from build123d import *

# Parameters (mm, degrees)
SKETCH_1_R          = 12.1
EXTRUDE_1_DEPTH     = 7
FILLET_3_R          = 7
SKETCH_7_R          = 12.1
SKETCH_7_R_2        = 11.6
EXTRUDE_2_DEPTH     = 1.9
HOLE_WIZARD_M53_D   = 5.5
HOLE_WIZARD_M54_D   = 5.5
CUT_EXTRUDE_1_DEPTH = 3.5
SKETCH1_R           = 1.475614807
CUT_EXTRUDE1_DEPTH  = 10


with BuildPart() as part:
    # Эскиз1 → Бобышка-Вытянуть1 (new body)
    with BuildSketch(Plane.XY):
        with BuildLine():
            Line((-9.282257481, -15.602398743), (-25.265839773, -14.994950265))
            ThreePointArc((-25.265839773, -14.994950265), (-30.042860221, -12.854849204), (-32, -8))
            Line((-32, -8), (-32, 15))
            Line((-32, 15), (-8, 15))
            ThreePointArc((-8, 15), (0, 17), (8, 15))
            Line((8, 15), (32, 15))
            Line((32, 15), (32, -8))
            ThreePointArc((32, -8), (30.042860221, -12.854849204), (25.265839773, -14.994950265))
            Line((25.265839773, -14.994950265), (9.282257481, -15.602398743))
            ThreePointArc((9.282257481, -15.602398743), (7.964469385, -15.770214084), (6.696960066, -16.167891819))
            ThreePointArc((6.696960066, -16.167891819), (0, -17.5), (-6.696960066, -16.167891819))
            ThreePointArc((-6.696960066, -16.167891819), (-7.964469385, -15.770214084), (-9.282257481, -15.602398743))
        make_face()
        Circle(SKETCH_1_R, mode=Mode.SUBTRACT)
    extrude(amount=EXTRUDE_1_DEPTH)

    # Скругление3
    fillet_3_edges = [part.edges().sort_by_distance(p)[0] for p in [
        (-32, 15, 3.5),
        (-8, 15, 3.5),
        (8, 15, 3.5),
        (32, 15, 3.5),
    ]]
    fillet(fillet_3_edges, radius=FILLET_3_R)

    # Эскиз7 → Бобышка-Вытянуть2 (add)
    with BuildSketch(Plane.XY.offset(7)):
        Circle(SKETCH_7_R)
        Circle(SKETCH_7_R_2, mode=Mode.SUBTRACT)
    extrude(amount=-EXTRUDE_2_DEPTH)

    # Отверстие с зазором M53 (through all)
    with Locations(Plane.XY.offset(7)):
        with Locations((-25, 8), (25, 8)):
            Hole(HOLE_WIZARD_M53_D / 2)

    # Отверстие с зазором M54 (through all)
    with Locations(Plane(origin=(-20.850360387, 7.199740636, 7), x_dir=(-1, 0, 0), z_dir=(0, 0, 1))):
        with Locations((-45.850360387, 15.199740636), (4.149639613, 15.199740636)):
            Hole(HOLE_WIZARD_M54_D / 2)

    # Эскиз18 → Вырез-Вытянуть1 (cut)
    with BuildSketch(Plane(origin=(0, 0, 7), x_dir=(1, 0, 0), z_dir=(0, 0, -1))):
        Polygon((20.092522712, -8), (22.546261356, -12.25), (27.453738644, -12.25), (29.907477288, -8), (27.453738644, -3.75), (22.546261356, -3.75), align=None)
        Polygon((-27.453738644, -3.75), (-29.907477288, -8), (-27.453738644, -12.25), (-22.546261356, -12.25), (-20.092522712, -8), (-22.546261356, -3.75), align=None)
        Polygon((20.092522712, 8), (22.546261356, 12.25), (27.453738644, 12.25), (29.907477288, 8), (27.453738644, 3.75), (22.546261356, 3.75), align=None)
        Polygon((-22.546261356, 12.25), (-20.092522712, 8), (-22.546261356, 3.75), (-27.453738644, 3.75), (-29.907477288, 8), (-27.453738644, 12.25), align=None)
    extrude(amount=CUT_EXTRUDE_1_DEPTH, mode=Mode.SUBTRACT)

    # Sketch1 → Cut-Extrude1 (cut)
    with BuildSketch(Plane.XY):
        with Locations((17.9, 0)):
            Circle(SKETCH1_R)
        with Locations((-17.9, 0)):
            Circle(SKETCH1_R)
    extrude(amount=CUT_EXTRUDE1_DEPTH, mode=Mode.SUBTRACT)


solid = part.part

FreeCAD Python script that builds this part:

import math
import FreeCAD as App
import Part
import Sketcher
from FreeCAD import Vector
Q = App.Units.Quantity


def edges_at(feature, points):
    """Names of the edges that pass closest to the given points."""
    edges = feature.Shape.Edges
    near = lambda p: min(range(len(edges)), key=lambda i: edges[i].distToShape(Part.Vertex(*p))[0])
    return sorted({f"Edge{near(p) + 1}" for p in points})

doc = App.newDocument("Part")
body = doc.addObject("PartDesign::Body", "Body")

sketch1 = doc.addObject("Sketcher::SketchObject", "Sketch")
body.addObject(sketch1)
sketch1.AttachmentSupport = (doc.XY_Plane, [""])
sketch1.MapMode = "FlatFace"
sketch1.addGeometry([
    Part.LineSegment(Vector(-25.26584, -14.99495, 0), Vector(-9.282257, -15.602399, 0)),
    Part.ArcOfCircle(Part.Circle(Vector(-9.567086, -23.096988, 0), Vector(0, 0, 1), 7.5), math.radians(67.5), math.radians(87.823548)),
    Part.ArcOfCircle(Part.Circle(Vector(0, 0, 0), Vector(0, 0, 1), 17.5), math.radians(-112.5), math.radians(-67.5)),
    Part.ArcOfCircle(Part.Circle(Vector(9.567086, -23.096988, 0), Vector(0, 0, 1), 7.5), math.radians(92.176452), math.radians(112.5)),
    Part.LineSegment(Vector(9.282257, -15.602399, 0), Vector(25.26584, -14.99495, 0)),
    Part.ArcOfCircle(Part.Circle(Vector(25, -8, 0), Vector(0, 0, 1), 7), math.radians(-87.823548), math.radians(0)),
    Part.LineSegment(Vector(32, -8, 0), Vector(32, 15, 0)),
    Part.LineSegment(Vector(32, 15, 0), Vector(8, 15, 0)),
    Part.ArcOfCircle(Part.Circle(Vector(0, 0, 0), Vector(0, 0, 1), 17), math.radians(61.927513), math.radians(118.072487)),
    Part.LineSegment(Vector(-8, 15, 0), Vector(-32, 15, 0)),
    Part.LineSegment(Vector(-32, 15, 0), Vector(-32, -8, 0)),
    Part.ArcOfCircle(Part.Circle(Vector(-25, -8, 0), Vector(0, 0, 1), 7), math.radians(180), math.radians(267.823548)),
    Part.Circle(Vector(0, 0, 0), Vector(0, 0, 1), 12.1),
], False)
sketch1.addConstraint([
    Sketcher.Constraint("Tangent", 0, 2, 1, 2),
    Sketcher.Constraint("Tangent", 1, 1, 2, 1),
    Sketcher.Constraint("Tangent", 2, 2, 3, 2),
    Sketcher.Constraint("Tangent", 3, 1, 4, 1),
    Sketcher.Constraint("Tangent", 4, 2, 5, 1),
    Sketcher.Constraint("Tangent", 5, 2, 6, 1),
    Sketcher.Constraint("Coincident", 6, 2, 7, 1),
    Sketcher.Constraint("Coincident", 7, 2, 8, 1),
    Sketcher.Constraint("Coincident", 8, 2, 9, 1),
    Sketcher.Constraint("Coincident", 9, 2, 10, 1),
    Sketcher.Constraint("Tangent", 10, 2, 11, 1),
    Sketcher.Constraint("Tangent", 11, 2, 0, 1),
    Sketcher.Constraint("Vertical", 6),
    Sketcher.Constraint("Horizontal", 7),
    Sketcher.Constraint("Horizontal", 9),
    Sketcher.Constraint("Vertical", 10),
    Sketcher.Constraint("Coincident", 2, 3, -1, 1),
    Sketcher.Constraint("Coincident", 8, 3, -1, 1),
    Sketcher.Constraint("Coincident", 12, 3, -1, 1),
    Sketcher.Constraint("Equal", 1, 3),
    Sketcher.Constraint("Equal", 5, 11),
    Sketcher.Constraint("Symmetric", 5, 3, 11, 3, -2),
    Sketcher.Constraint("Horizontal", 1, 3, 3, 3),
    Sketcher.Constraint("Horizontal", 7, 2, 8, 2),
    Sketcher.Constraint("Radius", 5, Q("7 mm")),
    Sketcher.Constraint("Radius", 8, Q("17 mm")),
    Sketcher.Constraint("Diameter", 12, Q("24.2 mm")),
    Sketcher.Constraint("Radius", 1, Q("7.5 mm")),
    Sketcher.Constraint("Radius", 2, Q("17.5 mm")),
    Sketcher.Constraint("DistanceX", 7, 2, 7, 1, Q("24 mm")),
    Sketcher.Constraint("DistanceY", 6, 1, 6, 2, Q("23 mm")),
    Sketcher.Constraint("DistanceX", -1, 1, 5, 3, Q("25 mm")),
    Sketcher.Constraint("DistanceY", 0, 2, -1, 1, Q("15.602399 mm")),
])
pad1 = doc.addObject("PartDesign::Pad", "Pad")
body.addObject(pad1)
pad1.Profile = sketch1
pad1.Length = 7
doc.recompute()

fillet = doc.addObject("PartDesign::Fillet", "Fillet")
body.addObject(fillet)
fillet.Base = (pad1, edges_at(pad1, [
    (-32, 15, 3.5),
    (-8, 15, 3.5),
    (8, 15, 3.5),
    (32, 15, 3.5),
]))
fillet.Radius = 7

sketch2 = doc.addObject("Sketcher::SketchObject", "Sketch001")
body.addObject(sketch2)
sketch2.AttachmentSupport = (doc.XY_Plane, [""])
sketch2.MapMode = "FlatFace"
sketch2.AttachmentOffset = App.Placement(Vector(0, 0, 7), App.Rotation())
sketch2.addGeometry([
    Part.Circle(Vector(0, 0, 0), Vector(0, 0, 1), 12.1),
    Part.Circle(Vector(0, 0, 0), Vector(0, 0, 1), 11.6),
], False)
sketch2.addConstraint([
    Sketcher.Constraint("Coincident", 0, 3, -1, 1),
    Sketcher.Constraint("Coincident", 1, 3, -1, 1),
    Sketcher.Constraint("Diameter", 0, Q("24.2 mm")),
    Sketcher.Constraint("Diameter", 1, Q("23.2 mm")),
])
pad2 = doc.addObject("PartDesign::Pad", "Pad001")
body.addObject(pad2)
pad2.Profile = sketch2
pad2.Length = 1.9
pad2.Reversed = True

sketch3 = doc.addObject("Sketcher::SketchObject", "Sketch002")
body.addObject(sketch3)
sketch3.AttachmentSupport = (doc.XY_Plane, [""])
sketch3.MapMode = "FlatFace"
sketch3.AttachmentOffset = App.Placement(Vector(0, 0, 7), App.Rotation())
sketch3.addGeometry([
    Part.Circle(Vector(-25, 8, 0), Vector(0, 0, 1), 2.75),
    Part.Circle(Vector(25, 8, 0), Vector(0, 0, 1), 2.75),
], False)
sketch3.addConstraint([
    Sketcher.Constraint("Equal", 0, 1),
    Sketcher.Constraint("Symmetric", 0, 3, 1, 3, -2),
    Sketcher.Constraint("Diameter", 0, Q("5.5 mm")),
    Sketcher.Constraint("DistanceX", 0, 3, -1, 1, Q("25 mm")),
    Sketcher.Constraint("DistanceY", -1, 1, 0, 3, Q("8 mm")),
])
doc.recompute()
hole = doc.addObject("PartDesign::Hole", "Hole")
body.addObject(hole)
hole.Profile = sketch3
hole.ThreadType = "None"
hole.Diameter = 5.5
hole.DepthType = "ThroughAll"

sketch4 = doc.addObject("Sketcher::SketchObject", "Sketch003")
body.addObject(sketch4)
sketch4.AttachmentSupport = (doc.XY_Plane, [""])
sketch4.MapMode = "FlatFace"
sketch4.AttachmentOffset = App.Placement(Vector(0, 0, 7), App.Rotation())
sketch4.addGeometry([
    Part.Circle(Vector(25, -8, 0), Vector(0, 0, 1), 2.75),
    Part.Circle(Vector(-25, -8, 0), Vector(0, 0, 1), 2.75),
], False)
sketch4.addConstraint([
    Sketcher.Constraint("Equal", 0, 1),
    Sketcher.Constraint("Symmetric", 0, 3, 1, 3, -2),
    Sketcher.Constraint("Diameter", 0, Q("5.5 mm")),
    Sketcher.Constraint("DistanceX", -1, 1, 0, 3, Q("25 mm")),
    Sketcher.Constraint("DistanceY", 0, 3, -1, 1, Q("8 mm")),
])
doc.recompute()
hole2 = doc.addObject("PartDesign::Hole", "Hole001")
body.addObject(hole2)
hole2.Profile = sketch4
hole2.ThreadType = "None"
hole2.Diameter = 5.5
hole2.DepthType = "ThroughAll"

sketch5 = doc.addObject("Sketcher::SketchObject", "Sketch004")
body.addObject(sketch5)
sketch5.AttachmentSupport = (doc.XY_Plane, [""])
sketch5.MapMode = "FlatFace"
sketch5.AttachmentOffset = App.Placement(Vector(0, 0, 7), App.Rotation())
sketch5.addGeometry([
    Part.LineSegment(Vector(20.092523, 8, 0), Vector(22.546261, 12.25, 0)),
    Part.LineSegment(Vector(22.546261, 12.25, 0), Vector(27.453739, 12.25, 0)),
    Part.LineSegment(Vector(27.453739, 12.25, 0), Vector(29.907477, 8, 0)),
    Part.LineSegment(Vector(29.907477, 8, 0), Vector(27.453739, 3.75, 0)),
    Part.LineSegment(Vector(27.453739, 3.75, 0), Vector(22.546261, 3.75, 0)),
    Part.LineSegment(Vector(22.546261, 3.75, 0), Vector(20.092523, 8, 0)),
    Part.LineSegment(Vector(-27.453739, 3.75, 0), Vector(-29.907477, 8, 0)),
    Part.LineSegment(Vector(-29.907477, 8, 0), Vector(-27.453739, 12.25, 0)),
    Part.LineSegment(Vector(-27.453739, 12.25, 0), Vector(-22.546261, 12.25, 0)),
    Part.LineSegment(Vector(-22.546261, 12.25, 0), Vector(-20.092523, 8, 0)),
    Part.LineSegment(Vector(-20.092523, 8, 0), Vector(-22.546261, 3.75, 0)),
    Part.LineSegment(Vector(-22.546261, 3.75, 0), Vector(-27.453739, 3.75, 0)),
    Part.LineSegment(Vector(22.546261, -12.25, 0), Vector(20.092523, -8, 0)),
    Part.LineSegment(Vector(20.092523, -8, 0), Vector(22.546261, -3.75, 0)),
    Part.LineSegment(Vector(22.546261, -3.75, 0), Vector(27.453739, -3.75, 0)),
    Part.LineSegment(Vector(27.453739, -3.75, 0), Vector(29.907477, -8, 0)),
    Part.LineSegment(Vector(29.907477, -8, 0), Vector(27.453739, -12.25, 0)),
    Part.LineSegment(Vector(27.453739, -12.25, 0), Vector(22.546261, -12.25, 0)),
    Part.LineSegment(Vector(-20.092523, -8, 0), Vector(-22.546261, -12.25, 0)),
    Part.LineSegment(Vector(-22.546261, -12.25, 0), Vector(-27.453739, -12.25, 0)),
    Part.LineSegment(Vector(-27.453739, -12.25, 0), Vector(-29.907477, -8, 0)),
    Part.LineSegment(Vector(-29.907477, -8, 0), Vector(-27.453739, -3.75, 0)),
    Part.LineSegment(Vector(-27.453739, -3.75, 0), Vector(-22.546261, -3.75, 0)),
    Part.LineSegment(Vector(-22.546261, -3.75, 0), Vector(-20.092523, -8, 0)),
], False)
sketch5.addConstraint([
    Sketcher.Constraint("Coincident", 0, 2, 1, 1),
    Sketcher.Constraint("Coincident", 1, 2, 2, 1),
    Sketcher.Constraint("Coincident", 2, 2, 3, 1),
    Sketcher.Constraint("Coincident", 3, 2, 4, 1),
    Sketcher.Constraint("Coincident", 4, 2, 5, 1),
    Sketcher.Constraint("Coincident", 5, 2, 0, 1),
    Sketcher.Constraint("Coincident", 6, 2, 7, 1),
    Sketcher.Constraint("Coincident", 7, 2, 8, 1),
    Sketcher.Constraint("Coincident", 8, 2, 9, 1),
    Sketcher.Constraint("Coincident", 9, 2, 10, 1),
    Sketcher.Constraint("Coincident", 10, 2, 11, 1),
    Sketcher.Constraint("Coincident", 11, 2, 6, 1),
    Sketcher.Constraint("Coincident", 12, 2, 13, 1),
    Sketcher.Constraint("Coincident", 13, 2, 14, 1),
    Sketcher.Constraint("Coincident", 14, 2, 15, 1),
    Sketcher.Constraint("Coincident", 15, 2, 16, 1),
    Sketcher.Constraint("Coincident", 16, 2, 17, 1),
    Sketcher.Constraint("Coincident", 17, 2, 12, 1),
    Sketcher.Constraint("Coincident", 18, 2, 19, 1),
    Sketcher.Constraint("Coincident", 19, 2, 20, 1),
    Sketcher.Constraint("Coincident", 20, 2, 21, 1),
    Sketcher.Constraint("Coincident", 21, 2, 22, 1),
    Sketcher.Constraint("Coincident", 22, 2, 23, 1),
    Sketcher.Constraint("Coincident", 23, 2, 18, 1),
    Sketcher.Constraint("Horizontal", 1),
    Sketcher.Constraint("Horizontal", 4),
    Sketcher.Constraint("Horizontal", 8),
    Sketcher.Constraint("Horizontal", 11),
    Sketcher.Constraint("Horizontal", 14),
    Sketcher.Constraint("Horizontal", 17),
    Sketcher.Constraint("Horizontal", 19),
    Sketcher.Constraint("Horizontal", 22),
    Sketcher.Constraint("Symmetric", 9, 2, 12, 2, -1, 1),
    Sketcher.Constraint("Symmetric", 10, 2, 13, 2, -1, 1),
    Sketcher.Constraint("Symmetric", 6, 2, 15, 2, -1, 1),
    Sketcher.Constraint("Symmetric", 7, 2, 16, 2, -1, 1),
    Sketcher.Constraint("Symmetric", 0, 2, 18, 2, -1, 1),
    Sketcher.Constraint("Symmetric", 2, 2, 20, 2, -1, 1),
    Sketcher.Constraint("Symmetric", 3, 2, 21, 2, -1, 1),
    Sketcher.Constraint("Symmetric", 5, 2, 23, 2, -1, 1),
    Sketcher.Constraint("Symmetric", 2, 2, 6, 2, -2),
    Sketcher.Constraint("Symmetric", 1, 2, 7, 2, -2),
    Sketcher.Constraint("Symmetric", 5, 2, 9, 2, -2),
    Sketcher.Constraint("Symmetric", 4, 2, 10, 2, -2),
    Sketcher.Constraint("Parallel", 0, 3),
    Sketcher.Constraint("Parallel", 2, 5),
    Sketcher.Constraint("Parallel", 5, 6),
    Sketcher.Constraint("Parallel", 3, 7),
    Sketcher.Constraint("Parallel", 6, 9),
    Sketcher.Constraint("Parallel", 9, 12),
    Sketcher.Constraint("Parallel", 12, 15),
    Sketcher.Constraint("Parallel", 15, 20),
    Sketcher.Constraint("Parallel", 20, 23),
    Sketcher.Constraint("Horizontal", 2, 2, 5, 2),
    Sketcher.Constraint("Vertical", 1, 2, 3, 2),
    Sketcher.Constraint("Angle", 0, Q("60 deg")),
    Sketcher.Constraint("DistanceY", -1, 1, 2, 2, Q("8 mm")),
    Sketcher.Constraint("DistanceX", 6, 2, 5, 2, Q("50 mm")),
    Sketcher.Constraint("DistanceY", 3, 2, 1, 2, Q("8.5 mm")),
    Sketcher.Constraint("DistanceX", 1, 1, 1, 2, Q("4.907477 mm")),
])
pocket1 = doc.addObject("PartDesign::Pocket", "Pocket")
body.addObject(pocket1)
pocket1.Profile = sketch5
pocket1.Length = 3.5

sketch6 = doc.addObject("Sketcher::SketchObject", "Sketch005")
body.addObject(sketch6)
sketch6.AttachmentSupport = (doc.XY_Plane, [""])
sketch6.MapMode = "FlatFace"
sketch6.addGeometry([
    Part.Circle(Vector(17.9, 0, 0), Vector(0, 0, 1), 1.475615),
    Part.Circle(Vector(-17.9, 0, 0), Vector(0, 0, 1), 1.475615),
], False)
sketch6.addConstraint([
    Sketcher.Constraint("Equal", 0, 1),
    Sketcher.Constraint("Symmetric", 0, 3, 1, 3, -1, 1),
    Sketcher.Constraint("PointOnObject", 0, 3, -1),
    Sketcher.Constraint("DistanceX", -1, 1, 0, 3, Q("17.9 mm")),
    Sketcher.Constraint("Diameter", 0, Q("2.95123 mm")),
])
pocket2 = doc.addObject("PartDesign::Pocket", "Pocket001")
body.addObject(pocket2)
pocket2.Profile = sketch6
pocket2.Length = 10
pocket2.Reversed = True

doc.recompute()
